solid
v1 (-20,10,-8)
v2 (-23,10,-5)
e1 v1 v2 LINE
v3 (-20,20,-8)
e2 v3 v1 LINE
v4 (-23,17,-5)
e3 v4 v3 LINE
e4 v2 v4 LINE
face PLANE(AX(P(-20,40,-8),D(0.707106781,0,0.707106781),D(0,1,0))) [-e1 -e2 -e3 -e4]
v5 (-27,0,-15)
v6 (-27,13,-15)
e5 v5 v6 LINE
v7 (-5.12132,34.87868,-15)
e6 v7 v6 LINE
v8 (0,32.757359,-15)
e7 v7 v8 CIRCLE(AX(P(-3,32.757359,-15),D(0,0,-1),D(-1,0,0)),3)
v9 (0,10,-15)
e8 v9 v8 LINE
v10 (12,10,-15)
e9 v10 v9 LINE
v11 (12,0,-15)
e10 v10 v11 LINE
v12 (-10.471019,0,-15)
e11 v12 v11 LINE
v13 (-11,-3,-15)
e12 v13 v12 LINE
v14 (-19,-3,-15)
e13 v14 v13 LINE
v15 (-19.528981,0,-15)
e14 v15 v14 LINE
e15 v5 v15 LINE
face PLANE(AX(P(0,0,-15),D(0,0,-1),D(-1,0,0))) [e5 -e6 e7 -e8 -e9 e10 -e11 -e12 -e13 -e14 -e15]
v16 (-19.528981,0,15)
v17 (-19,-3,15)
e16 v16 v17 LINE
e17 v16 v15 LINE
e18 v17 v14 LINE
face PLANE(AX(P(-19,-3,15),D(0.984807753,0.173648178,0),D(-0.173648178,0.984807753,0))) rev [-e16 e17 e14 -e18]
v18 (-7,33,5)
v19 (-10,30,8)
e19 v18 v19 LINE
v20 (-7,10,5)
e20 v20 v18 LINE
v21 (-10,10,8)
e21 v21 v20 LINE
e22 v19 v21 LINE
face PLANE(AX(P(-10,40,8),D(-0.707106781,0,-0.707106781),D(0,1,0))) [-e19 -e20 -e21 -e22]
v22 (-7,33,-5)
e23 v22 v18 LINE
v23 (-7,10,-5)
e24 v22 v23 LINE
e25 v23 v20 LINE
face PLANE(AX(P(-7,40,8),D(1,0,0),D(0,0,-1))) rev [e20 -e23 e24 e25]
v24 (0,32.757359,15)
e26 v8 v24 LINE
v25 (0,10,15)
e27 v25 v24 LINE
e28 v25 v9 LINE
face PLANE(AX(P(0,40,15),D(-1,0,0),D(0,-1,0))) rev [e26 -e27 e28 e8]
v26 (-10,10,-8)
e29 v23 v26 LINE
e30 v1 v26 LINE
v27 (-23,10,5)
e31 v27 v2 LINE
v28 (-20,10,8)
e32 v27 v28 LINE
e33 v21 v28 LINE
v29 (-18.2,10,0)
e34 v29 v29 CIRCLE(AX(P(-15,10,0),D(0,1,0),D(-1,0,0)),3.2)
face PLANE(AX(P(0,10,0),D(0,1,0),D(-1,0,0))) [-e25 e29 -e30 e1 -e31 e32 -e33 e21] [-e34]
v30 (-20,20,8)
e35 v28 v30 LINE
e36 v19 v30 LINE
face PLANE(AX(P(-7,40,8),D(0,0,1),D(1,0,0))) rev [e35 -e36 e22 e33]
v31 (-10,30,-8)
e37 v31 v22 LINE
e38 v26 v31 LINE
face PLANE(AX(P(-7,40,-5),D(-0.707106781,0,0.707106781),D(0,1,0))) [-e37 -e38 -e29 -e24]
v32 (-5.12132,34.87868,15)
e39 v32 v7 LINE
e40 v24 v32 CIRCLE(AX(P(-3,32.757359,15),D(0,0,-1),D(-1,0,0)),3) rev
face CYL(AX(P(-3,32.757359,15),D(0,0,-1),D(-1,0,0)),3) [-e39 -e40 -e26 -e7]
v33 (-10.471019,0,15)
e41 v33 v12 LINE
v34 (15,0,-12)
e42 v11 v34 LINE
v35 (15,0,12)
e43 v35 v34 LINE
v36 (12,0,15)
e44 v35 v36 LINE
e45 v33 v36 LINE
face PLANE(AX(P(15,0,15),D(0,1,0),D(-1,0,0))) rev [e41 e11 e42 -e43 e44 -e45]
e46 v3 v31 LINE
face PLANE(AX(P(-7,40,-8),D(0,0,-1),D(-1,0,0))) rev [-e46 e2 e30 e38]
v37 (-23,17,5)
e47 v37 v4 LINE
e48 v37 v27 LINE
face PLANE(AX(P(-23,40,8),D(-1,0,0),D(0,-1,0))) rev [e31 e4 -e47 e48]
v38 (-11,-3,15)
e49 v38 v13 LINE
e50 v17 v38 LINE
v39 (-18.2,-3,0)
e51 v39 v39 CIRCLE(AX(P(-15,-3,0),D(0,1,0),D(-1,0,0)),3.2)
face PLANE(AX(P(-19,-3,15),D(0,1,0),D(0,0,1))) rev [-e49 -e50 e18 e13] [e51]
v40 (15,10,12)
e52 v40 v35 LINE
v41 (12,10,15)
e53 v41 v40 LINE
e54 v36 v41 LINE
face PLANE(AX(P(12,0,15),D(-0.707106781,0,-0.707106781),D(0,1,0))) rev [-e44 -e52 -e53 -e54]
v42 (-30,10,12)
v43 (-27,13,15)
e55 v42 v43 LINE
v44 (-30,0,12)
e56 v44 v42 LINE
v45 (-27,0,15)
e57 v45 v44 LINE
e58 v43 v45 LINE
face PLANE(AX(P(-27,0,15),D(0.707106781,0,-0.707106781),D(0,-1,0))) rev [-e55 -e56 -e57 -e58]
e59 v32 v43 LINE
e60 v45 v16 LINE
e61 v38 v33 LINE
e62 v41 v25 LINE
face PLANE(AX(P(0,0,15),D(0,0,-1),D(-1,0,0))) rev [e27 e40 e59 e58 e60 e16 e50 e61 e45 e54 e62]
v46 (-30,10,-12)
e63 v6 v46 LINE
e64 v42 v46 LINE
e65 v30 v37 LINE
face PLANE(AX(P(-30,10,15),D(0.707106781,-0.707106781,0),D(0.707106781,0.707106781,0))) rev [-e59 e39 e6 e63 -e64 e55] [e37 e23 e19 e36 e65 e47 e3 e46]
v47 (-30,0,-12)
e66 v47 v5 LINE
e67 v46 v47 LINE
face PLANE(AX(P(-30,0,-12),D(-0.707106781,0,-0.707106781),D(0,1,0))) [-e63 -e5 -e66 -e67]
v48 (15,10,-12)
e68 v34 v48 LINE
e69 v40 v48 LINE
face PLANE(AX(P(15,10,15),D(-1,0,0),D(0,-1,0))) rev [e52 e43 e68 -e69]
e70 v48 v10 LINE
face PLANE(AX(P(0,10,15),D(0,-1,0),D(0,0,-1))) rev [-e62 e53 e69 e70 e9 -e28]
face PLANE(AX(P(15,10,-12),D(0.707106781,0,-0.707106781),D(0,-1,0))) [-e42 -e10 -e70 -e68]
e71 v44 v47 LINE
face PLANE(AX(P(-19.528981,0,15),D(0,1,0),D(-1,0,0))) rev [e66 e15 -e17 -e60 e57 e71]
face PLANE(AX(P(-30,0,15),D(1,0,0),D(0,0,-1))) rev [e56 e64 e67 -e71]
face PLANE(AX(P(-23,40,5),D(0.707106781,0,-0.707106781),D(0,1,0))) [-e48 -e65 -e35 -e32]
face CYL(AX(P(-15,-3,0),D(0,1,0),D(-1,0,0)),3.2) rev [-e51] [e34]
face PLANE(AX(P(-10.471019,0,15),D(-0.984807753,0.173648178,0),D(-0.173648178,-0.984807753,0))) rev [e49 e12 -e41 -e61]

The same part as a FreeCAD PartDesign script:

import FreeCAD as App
import Part
import Sketcher
from FreeCAD import Vector
Q = App.Units.Quantity


def edges_at(feature, points):
    """Names of the edges that pass closest to the given points."""
    edges = feature.Shape.Edges
    near = lambda p: min(range(len(edges)), key=lambda i: edges[i].distToShape(Part.Vertex(*p))[0])
    return sorted({f"Edge{near(p) + 1}" for p in points})


def add_polygon(sketch, points):
    """Adds a closed chain of lines whose ends are joined by coincident constraints."""
    first, n = sketch.GeometryCount, len(points)
    for a, b in zip(points, points[1:] + points[:1]):
        sketch.addGeometry(Part.LineSegment(App.Vector(*a, 0), App.Vector(*b, 0)), False)
    for i in range(n):
        sketch.addConstraint(Sketcher.Constraint("Coincident", first + i, 2, first + (i + 1) % n, 1))

doc = App.newDocument("Part")
body = doc.addObject("PartDesign::Body", "Body")

sketch1 = body.newObject("Sketcher::SketchObject", "Sketch")
sketch1.AttachmentSupport = (doc.getObject("XY_Plane"), [""])
sketch1.MapMode = "FlatFace"
add_polygon(sketch1, [(-30, 10), (-30, 0), (-19.528981, 0), (-19, -3), (-11, -3), (-10.471019, 0), (15, 0), (15, 10), (0, 10), (0, 40)])
sketch1.addConstraint([
    Sketcher.Constraint("Vertical", 0),
    Sketcher.Constraint("Horizontal", 1),
    Sketcher.Constraint("Horizontal", 3),
    Sketcher.Constraint("Horizontal", 5),
    Sketcher.Constraint("Vertical", 6),
    Sketcher.Constraint("Horizontal", 7),
    Sketcher.Constraint("Vertical", 8),
    Sketcher.Constraint("PointOnObject", 0, 2, -1),
    Sketcher.Constraint("PointOnObject", 4, 2, -1),
    Sketcher.Constraint("PointOnObject", 7, 2, -2),
    Sketcher.Constraint("Horizontal", 7, 2, 9, 2),
    Sketcher.Constraint("Equal", 2, 4),
    Sketcher.Constraint("DistanceX", 3, 1, 3, 2, 8.0),
    Sketcher.Constraint("DistanceX", 7, 2, 7, 1, 15.0),
    Sketcher.Constraint("DistanceY", 0, 2, 0, 1, 10.0),
    Sketcher.Constraint("DistanceY", 8, 1, 8, 2, 30.0),
    Sketcher.Constraint("Angle", 2, Q("-80 deg")),
    Sketcher.Constraint("Angle", 9, Q("-135 deg")),
    Sketcher.Constraint("DistanceX", 2, 2, -1, 1, 19.0),
    Sketcher.Constraint("DistanceY", 2, 2, -1, 1, 3.0),
])
pad1 = body.newObject("PartDesign::Pad", "Pad")
pad1.Profile = sketch1
pad1.Length = 30
pad1.Midplane = True
doc.recompute()

chamfer = body.newObject("PartDesign::Chamfer", "Chamfer")
chamfer.Base = (pad1, edges_at(pad1, [
    (-30, 5, -15),
    (15, 5, 15),
    (15, 5, -15),
    (-30, 5, 15),
]))
chamfer.Size = 3

sketch2 = body.newObject("Sketcher::SketchObject", "Sketch001")
sketch2.AttachmentSupport = (doc.getObject("XZ_Plane"), [""])
sketch2.MapMode = "FlatFace"
sketch2.AttachmentOffset = App.Placement(Vector(0, 0, -10), App.Rotation())
add_polygon(sketch2, [(-23, 8), (-23, -8), (-7, -8), (-7, 8)])
sketch2.addConstraint([
    Sketcher.Constraint("Vertical", 0),
    Sketcher.Constraint("Horizontal", 1),
    Sketcher.Constraint("Vertical", 2),
    Sketcher.Constraint("Horizontal", 3),
    Sketcher.Constraint("Equal", 3, 0),
    Sketcher.Constraint("DistanceX", 1, 1, 1, 2, 16.0),
    Sketcher.Constraint("DistanceX", 0, 2, -1, 1, 23.0),
    Sketcher.Constraint("DistanceY", 0, 2, -1, 1, 8.0),
])
pocket1 = body.newObject("PartDesign::Pocket", "Pocket")
pocket1.Profile = sketch2
pocket1.Type = "ThroughAll"
doc.recompute()

chamfer2 = body.newObject("PartDesign::Chamfer", "Chamfer001")
chamfer2.Base = (pocket1, edges_at(pocket1, [
    (-23, 13.5, -8),
    (-23, 13.5, 8),
    (-7, 21.5, 8),
    (-7, 21.5, -8),
]))
chamfer2.Size = 3

sketch3 = body.newObject("Sketcher::SketchObject", "Sketch002")
sketch3.AttachmentSupport = (doc.getObject("XZ_Plane"), [""])
sketch3.MapMode = "FlatFace"
sketch3.AttachmentOffset = App.Placement(Vector(0, 0, -10), App.Rotation())
sketch3.addGeometry(Part.Circle(Vector(-15, 0, 0), Vector(0, 0, 1), 3.2), False)
sketch3.addConstraint([
    Sketcher.Constraint("PointOnObject", 0, 3, -1),
    Sketcher.Constraint("Diameter", 0, 6.4),
    Sketcher.Constraint("DistanceX", 0, 3, -1, 1, 15.0),
])
pocket2 = body.newObject("PartDesign::Pocket", "Pocket001")
pocket2.Profile = sketch3
pocket2.Type = "ThroughAll"
pocket2.Reversed = True
doc.recompute()

fillet = body.newObject("PartDesign::Fillet", "Fillet")
fillet.Base = (pocket2, edges_at(pocket2, [(0, 40, 0)]))
fillet.Radius = 3

doc.recompute()
